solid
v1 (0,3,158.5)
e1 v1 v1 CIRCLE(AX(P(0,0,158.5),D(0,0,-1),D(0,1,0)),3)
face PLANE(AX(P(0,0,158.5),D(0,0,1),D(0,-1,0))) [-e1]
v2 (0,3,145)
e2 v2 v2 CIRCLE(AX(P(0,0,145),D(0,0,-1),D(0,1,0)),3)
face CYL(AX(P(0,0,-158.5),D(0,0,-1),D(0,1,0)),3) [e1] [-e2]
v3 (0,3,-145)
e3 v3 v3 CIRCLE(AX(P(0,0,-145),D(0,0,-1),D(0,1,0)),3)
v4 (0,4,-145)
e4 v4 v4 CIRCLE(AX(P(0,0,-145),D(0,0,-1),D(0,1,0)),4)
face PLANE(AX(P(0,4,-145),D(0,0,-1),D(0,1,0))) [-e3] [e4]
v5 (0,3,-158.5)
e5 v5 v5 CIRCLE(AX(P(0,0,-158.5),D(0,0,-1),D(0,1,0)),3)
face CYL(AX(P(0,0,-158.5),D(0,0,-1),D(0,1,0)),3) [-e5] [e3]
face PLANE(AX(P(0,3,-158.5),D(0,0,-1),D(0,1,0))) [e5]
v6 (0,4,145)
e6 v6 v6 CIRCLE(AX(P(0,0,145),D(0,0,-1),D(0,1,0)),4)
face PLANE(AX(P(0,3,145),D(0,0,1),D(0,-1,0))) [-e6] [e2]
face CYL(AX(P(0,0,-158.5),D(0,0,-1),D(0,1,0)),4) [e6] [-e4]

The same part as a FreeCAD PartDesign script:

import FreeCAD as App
import Part
import Sketcher

V = App.Vector
Q = App.Units.Quantity


def add_polygon(sketch, points):
    """Adds a closed chain of lines whose ends are joined by coincident constraints."""
    first, n = sketch.GeometryCount, len(points)
    for a, b in zip(points, points[1:] + points[:1]):
        sketch.addGeometry(Part.LineSegment(App.Vector(*a, 0), App.Vector(*b, 0)), False)
    for i in range(n):
        sketch.addConstraint(Sketcher.Constraint("Coincident", first + i, 2, first + (i + 1) % n, 1))

doc = App.newDocument("Part")
body = doc.addObject("PartDesign::Body", "Body")

sketch1 = body.newObject("Sketcher::SketchObject", "Sketch")
sketch1.AttachmentSupport = (doc.getObject("YZ_Plane"), [""])
sketch1.MapMode = "FlatFace"
add_polygon(sketch1, [(0, 158.5), (0, -158.5), (3, -158.5), (3, -145), (4, -145), (4, 145), (3, 145), (3, 158.5)])
sketch1.addConstraint([
    Sketcher.Constraint("Vertical", 0),
    Sketcher.Constraint("Horizontal", 1),
    Sketcher.Constraint("Vertical", 2),
    Sketcher.Constraint("Horizontal", 3),
    Sketcher.Constraint("Vertical", 4),
    Sketcher.Constraint("Horizontal", 5),
    Sketcher.Constraint("Vertical", 6),
    Sketcher.Constraint("Horizontal", 7),
    Sketcher.Constraint("Symmetric", 0, 2, 7, 2, -1, 1),
    Sketcher.Constraint("Symmetric", 2, 2, 5, 2, -1),
    Sketcher.Constraint("DistanceX", 1, 1, 1, 2, Q("3 mm")),
    Sketcher.Constraint("DistanceX", 3, 1, 3, 2, Q("1 mm")),
    Sketcher.Constraint("DistanceY", 0, 2, 0, 1, Q("317 mm")),
    Sketcher.Constraint("DistanceY", 4, 1, 4, 2, Q("290 mm")),
])
revolution = body.newObject("PartDesign::Revolution", "Revolution")
revolution.Profile = sketch1
revolution.ReferenceAxis = (sketch1, ["V_Axis"])
revolution.Angle = 360

doc.recompute()
